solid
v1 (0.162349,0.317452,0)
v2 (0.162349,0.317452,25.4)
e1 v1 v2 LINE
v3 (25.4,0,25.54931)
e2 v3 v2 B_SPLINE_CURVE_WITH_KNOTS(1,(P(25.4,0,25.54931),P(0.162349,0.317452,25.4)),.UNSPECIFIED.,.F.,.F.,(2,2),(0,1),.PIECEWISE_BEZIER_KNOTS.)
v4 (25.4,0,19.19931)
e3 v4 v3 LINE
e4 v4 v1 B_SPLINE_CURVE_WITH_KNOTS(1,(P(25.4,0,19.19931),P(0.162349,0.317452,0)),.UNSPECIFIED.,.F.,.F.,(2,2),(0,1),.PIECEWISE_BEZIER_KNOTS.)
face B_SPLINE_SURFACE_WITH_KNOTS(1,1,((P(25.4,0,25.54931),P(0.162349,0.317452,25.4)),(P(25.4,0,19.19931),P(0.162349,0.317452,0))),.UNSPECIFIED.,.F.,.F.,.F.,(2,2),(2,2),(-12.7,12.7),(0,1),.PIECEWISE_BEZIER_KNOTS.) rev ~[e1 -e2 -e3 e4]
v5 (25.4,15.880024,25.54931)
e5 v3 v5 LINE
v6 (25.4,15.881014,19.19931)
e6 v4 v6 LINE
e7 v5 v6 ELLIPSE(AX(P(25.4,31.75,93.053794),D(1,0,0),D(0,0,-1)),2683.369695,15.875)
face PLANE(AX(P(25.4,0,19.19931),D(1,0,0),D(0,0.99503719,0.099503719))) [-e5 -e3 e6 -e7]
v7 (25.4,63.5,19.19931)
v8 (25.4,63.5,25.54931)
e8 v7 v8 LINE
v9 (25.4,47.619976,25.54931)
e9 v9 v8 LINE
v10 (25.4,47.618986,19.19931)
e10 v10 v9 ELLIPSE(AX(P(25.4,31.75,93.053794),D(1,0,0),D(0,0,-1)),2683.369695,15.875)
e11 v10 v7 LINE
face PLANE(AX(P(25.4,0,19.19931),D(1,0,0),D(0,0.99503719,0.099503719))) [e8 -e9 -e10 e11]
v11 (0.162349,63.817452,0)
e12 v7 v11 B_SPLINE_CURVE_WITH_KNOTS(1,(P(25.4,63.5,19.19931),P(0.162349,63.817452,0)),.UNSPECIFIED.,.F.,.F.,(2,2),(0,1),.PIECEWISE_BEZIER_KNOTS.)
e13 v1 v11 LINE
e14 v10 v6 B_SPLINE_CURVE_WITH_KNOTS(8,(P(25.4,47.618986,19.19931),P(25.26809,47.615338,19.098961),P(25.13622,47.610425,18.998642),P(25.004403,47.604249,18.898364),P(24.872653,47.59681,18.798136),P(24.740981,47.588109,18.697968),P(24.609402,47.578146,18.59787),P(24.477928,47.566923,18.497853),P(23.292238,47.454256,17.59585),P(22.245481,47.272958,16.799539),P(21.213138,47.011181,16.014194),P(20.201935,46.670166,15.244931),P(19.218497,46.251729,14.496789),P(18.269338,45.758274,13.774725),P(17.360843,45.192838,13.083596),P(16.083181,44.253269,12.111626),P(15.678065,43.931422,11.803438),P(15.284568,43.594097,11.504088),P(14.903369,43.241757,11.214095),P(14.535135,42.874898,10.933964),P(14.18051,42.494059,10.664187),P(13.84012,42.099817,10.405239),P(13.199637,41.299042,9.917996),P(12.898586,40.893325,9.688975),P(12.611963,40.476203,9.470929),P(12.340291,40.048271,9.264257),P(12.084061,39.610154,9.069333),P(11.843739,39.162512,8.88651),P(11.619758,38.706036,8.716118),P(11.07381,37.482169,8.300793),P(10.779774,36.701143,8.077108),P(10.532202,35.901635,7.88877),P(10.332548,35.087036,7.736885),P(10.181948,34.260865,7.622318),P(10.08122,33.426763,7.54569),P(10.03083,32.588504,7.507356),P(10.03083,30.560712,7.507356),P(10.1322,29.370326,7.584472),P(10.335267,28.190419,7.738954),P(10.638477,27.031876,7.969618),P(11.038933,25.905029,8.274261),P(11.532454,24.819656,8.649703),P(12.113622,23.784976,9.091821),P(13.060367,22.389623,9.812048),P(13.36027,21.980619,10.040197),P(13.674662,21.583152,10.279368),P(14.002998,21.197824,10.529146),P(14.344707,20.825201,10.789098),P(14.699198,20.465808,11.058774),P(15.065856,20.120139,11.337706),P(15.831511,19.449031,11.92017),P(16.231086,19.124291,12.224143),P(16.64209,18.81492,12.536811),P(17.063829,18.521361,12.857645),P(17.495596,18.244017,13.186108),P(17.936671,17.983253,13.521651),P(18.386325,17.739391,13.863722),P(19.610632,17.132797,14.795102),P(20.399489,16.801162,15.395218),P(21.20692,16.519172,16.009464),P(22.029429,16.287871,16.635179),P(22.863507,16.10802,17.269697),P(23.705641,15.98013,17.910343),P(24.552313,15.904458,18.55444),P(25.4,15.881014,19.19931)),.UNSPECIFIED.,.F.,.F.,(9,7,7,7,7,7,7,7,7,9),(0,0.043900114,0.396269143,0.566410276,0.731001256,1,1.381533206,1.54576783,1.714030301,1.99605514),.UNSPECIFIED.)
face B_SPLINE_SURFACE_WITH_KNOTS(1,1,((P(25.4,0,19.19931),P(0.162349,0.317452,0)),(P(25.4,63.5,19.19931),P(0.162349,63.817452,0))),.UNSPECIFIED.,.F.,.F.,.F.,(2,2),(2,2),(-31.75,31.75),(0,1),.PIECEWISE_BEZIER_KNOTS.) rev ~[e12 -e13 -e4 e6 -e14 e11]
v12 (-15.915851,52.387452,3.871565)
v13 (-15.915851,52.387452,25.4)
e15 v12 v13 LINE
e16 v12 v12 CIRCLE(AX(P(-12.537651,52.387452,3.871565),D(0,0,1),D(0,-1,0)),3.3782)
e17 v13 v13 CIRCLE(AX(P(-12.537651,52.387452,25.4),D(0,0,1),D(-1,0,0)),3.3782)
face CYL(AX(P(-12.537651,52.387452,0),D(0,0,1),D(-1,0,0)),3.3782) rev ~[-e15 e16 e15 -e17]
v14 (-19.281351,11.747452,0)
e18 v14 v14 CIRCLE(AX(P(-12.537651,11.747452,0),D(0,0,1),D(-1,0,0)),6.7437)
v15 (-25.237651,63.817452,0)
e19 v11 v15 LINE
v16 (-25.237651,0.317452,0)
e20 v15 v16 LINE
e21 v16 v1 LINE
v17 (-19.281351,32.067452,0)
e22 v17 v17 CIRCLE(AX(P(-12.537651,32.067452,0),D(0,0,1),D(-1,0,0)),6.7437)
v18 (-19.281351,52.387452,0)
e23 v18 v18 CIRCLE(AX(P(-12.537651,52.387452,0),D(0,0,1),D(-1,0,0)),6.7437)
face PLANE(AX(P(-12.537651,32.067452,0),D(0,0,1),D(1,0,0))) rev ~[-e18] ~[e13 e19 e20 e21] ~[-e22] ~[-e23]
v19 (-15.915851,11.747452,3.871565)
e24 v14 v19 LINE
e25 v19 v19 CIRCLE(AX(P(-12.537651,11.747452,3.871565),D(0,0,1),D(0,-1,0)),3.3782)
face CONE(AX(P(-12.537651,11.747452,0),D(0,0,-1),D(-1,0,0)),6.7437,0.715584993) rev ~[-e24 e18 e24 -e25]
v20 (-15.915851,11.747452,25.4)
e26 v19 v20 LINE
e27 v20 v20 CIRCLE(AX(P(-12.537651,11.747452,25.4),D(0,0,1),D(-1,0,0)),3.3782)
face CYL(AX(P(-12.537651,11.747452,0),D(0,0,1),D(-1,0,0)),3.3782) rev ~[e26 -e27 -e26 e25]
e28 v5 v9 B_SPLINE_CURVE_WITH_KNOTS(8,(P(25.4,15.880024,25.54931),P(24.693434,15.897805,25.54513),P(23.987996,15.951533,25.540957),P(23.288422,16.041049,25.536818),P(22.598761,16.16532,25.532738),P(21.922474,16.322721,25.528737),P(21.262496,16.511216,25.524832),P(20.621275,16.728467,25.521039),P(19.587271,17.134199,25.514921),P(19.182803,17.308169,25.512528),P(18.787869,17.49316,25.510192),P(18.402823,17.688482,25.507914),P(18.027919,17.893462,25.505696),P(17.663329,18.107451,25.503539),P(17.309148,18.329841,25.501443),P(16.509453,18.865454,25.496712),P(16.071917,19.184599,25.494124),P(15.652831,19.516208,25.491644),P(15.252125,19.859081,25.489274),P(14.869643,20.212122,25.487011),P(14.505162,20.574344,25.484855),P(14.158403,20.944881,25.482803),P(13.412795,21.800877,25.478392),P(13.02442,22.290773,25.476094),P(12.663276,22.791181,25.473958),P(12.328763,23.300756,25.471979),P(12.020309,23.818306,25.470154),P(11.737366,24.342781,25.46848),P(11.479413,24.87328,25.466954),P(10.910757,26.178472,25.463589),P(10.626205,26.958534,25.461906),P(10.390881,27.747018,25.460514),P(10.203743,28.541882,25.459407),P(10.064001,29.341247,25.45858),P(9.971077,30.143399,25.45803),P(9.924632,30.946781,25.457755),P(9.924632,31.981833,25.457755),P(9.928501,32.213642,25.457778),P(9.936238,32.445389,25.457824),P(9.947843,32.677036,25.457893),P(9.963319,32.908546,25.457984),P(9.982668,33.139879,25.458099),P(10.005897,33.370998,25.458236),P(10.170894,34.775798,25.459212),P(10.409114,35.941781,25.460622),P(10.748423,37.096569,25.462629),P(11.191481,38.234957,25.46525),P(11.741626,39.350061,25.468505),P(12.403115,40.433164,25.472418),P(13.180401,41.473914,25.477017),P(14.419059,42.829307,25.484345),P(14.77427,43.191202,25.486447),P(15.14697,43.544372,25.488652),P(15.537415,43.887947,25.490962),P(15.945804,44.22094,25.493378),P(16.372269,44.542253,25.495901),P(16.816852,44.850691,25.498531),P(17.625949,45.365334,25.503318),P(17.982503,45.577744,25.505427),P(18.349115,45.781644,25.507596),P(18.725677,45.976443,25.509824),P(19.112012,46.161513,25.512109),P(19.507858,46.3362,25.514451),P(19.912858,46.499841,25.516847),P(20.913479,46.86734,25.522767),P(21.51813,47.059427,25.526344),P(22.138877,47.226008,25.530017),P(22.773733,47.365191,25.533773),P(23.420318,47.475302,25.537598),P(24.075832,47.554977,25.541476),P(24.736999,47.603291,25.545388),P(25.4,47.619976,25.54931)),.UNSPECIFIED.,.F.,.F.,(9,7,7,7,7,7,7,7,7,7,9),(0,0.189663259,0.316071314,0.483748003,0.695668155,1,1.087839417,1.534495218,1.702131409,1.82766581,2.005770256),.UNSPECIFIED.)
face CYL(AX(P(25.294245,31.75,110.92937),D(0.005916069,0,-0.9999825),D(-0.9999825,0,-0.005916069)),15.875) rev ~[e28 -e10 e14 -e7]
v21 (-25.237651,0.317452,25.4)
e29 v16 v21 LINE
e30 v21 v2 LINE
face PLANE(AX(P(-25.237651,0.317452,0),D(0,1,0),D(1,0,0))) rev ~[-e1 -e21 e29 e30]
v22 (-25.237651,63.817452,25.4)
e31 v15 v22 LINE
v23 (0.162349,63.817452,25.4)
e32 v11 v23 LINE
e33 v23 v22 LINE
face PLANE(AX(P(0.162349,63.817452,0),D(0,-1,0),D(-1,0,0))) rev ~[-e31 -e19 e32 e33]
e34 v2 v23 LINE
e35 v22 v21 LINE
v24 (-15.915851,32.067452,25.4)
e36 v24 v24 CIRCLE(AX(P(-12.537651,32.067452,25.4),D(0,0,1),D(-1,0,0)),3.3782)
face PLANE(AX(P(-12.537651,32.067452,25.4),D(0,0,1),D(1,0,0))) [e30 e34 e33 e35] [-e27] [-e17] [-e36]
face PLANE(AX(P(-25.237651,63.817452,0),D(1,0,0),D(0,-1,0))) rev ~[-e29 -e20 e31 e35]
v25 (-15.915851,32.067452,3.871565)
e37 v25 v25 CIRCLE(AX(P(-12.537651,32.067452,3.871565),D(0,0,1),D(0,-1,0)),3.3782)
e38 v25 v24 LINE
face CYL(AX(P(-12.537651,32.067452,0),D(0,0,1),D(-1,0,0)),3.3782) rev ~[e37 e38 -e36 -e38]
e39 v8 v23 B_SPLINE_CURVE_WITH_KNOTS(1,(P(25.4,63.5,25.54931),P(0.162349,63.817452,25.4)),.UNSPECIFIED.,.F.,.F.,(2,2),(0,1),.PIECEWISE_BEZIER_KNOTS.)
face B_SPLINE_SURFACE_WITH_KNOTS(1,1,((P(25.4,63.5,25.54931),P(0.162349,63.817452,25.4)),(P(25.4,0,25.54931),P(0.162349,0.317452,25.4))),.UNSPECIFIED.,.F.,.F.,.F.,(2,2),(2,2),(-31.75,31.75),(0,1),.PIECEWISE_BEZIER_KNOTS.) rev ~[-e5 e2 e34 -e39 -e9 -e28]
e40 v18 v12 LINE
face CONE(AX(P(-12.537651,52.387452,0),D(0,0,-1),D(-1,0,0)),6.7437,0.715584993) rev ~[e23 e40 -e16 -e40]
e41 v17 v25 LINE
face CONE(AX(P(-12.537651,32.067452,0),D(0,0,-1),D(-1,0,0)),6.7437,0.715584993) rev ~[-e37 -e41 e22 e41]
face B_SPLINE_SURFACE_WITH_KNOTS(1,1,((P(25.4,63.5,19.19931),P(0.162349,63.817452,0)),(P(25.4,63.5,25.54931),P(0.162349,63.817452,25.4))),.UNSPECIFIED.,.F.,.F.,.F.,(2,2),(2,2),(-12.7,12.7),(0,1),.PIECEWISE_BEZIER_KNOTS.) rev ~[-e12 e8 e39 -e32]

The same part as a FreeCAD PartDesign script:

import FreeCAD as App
import Part
import Sketcher

V = App.Vector
Q = App.Units.Quantity

doc = App.newDocument("Part")
params = doc.addObject("Spreadsheet::Sheet", "Params")
for row, (alias, value) in enumerate([
    ("sketch1_width", "1 in"),
    ("sketch1_height", "2.5 in"),
    ("pad1_length", "1 in"),
    ("sketch2_diameter", "0.266 in"),
    ("hole_diameter", "0.266 in"),
    ("hole_csink_diameter", "0.531 in"),
    ("sketch3_width", "2.5 in"),
    ("sketch3_height", "0.25 in"),
    ("sketch4_height", "1 in"),
    ("sketch4_width", "2.5 in"),
    ("sketch5_diameter", "1.25 in"),
    ("hole2_diameter", "1.25 in"),
], start=1):
    params.set(f"A{row}", alias)
    params.set(f"B{row}", "=" + value)
    params.setAlias(f"B{row}", alias)

body = doc.addObject("PartDesign::Body", "Body")

# Sketch on XY plane
sketch1 = body.newObject("Sketcher::SketchObject", "Sketch")
sketch1.AttachmentSupport = (doc.getObject("XY_Plane"), [""])
sketch1.MapMode = "FlatFace"
sketch1.addGeometry(Part.LineSegment(V(0, 64, 0), V(-25, 64, 0)), False)
sketch1.addGeometry(Part.LineSegment(V(-25, 64, 0), V(-25, 0, 0)), False)
sketch1.addGeometry(Part.LineSegment(V(-25, 0, 0), V(0, 0, 0)), False)
sketch1.addGeometry(Part.LineSegment(V(0, 0, 0), V(0, 64, 0)), False)
sketch1.addConstraint(Sketcher.Constraint("Coincident", 0, 2, 1, 1))
sketch1.addConstraint(Sketcher.Constraint("Coincident", 1, 2, 2, 1))
sketch1.addConstraint(Sketcher.Constraint("Coincident", 2, 2, 3, 1))
sketch1.addConstraint(Sketcher.Constraint("Coincident", 3, 2, 0, 1))
sketch1.addConstraint(Sketcher.Constraint("Horizontal", 0))
sketch1.addConstraint(Sketcher.Constraint("Vertical", 1))
sketch1.addConstraint(Sketcher.Constraint("Horizontal", 2))
sketch1.addConstraint(Sketcher.Constraint("Vertical", 3))
sketch1.addConstraint(Sketcher.Constraint("DistanceX", 0, 2, 0, 1, Q("1 in")))
sketch1.addConstraint(Sketcher.Constraint("DistanceY", 1, 2, 1, 1, Q("2.5 in")))
sketch1.addConstraint(Sketcher.Constraint("DistanceX", 0, 2, -1, 1, Q("25.237651 mm")))
sketch1.addConstraint(Sketcher.Constraint("DistanceY", -1, 1, 0, 2, Q("63.817452 mm")))
sketch1.setExpression("Constraints[8]", "Params.sketch1_width")
sketch1.setExpression("Constraints[9]", "Params.sketch1_height")
pad1 = body.newObject("PartDesign::Pad", "Pad")
pad1.Profile = sketch1
pad1.setExpression("Length", "Params.pad1_length")

# Sketch on XY plane
sketch2 = body.newObject("Sketcher::SketchObject", "Sketch001")
sketch2.AttachmentSupport = (doc.getObject("XY_Plane"), [""])
sketch2.MapMode = "FlatFace"
sketch2.addGeometry(Part.Circle(V(-12.5, 11.7, 0), V(0, 0, 1), 3.4), False)
sketch2.addGeometry(Part.Circle(V(-12.5, 32.1, 0), V(0, 0, 1), 3.4), False)
sketch2.addGeometry(Part.Circle(V(-12.5, 52.4, 0), V(0, 0, 1), 3.4), False)
sketch2.addConstraint(Sketcher.Constraint("Equal", 0, 1))
sketch2.addConstraint(Sketcher.Constraint("Equal", 1, 2))
sketch2.addConstraint(Sketcher.Constraint("Vertical", 0, 3, 1, 3))
sketch2.addConstraint(Sketcher.Constraint("Vertical", 1, 3, 2, 3))
sketch2.addConstraint(Sketcher.Constraint("Diameter", 0, Q("0.266 in")))
sketch2.addConstraint(Sketcher.Constraint("DistanceY", 0, 3, 1, 3, Q("0.8 in")))
sketch2.addConstraint(Sketcher.Constraint("DistanceY", 1, 3, 2, 3, Q("0.8 in")))
sketch2.addConstraint(Sketcher.Constraint("DistanceX", 0, 3, -1, 1, Q("12.537651 mm")))
sketch2.addConstraint(Sketcher.Constraint("DistanceY", -1, 1, 0, 3, Q("11.747452 mm")))
sketch2.setExpression("Constraints[4]", "Params.sketch2_diameter")
doc.recompute()
hole = body.newObject("PartDesign::Hole", "Hole")
hole.Profile = sketch2
hole.ThreadType = "None"
hole.setExpression("Diameter", "Params.hole_diameter")
hole.DepthType = "ThroughAll"
hole.HoleCutType = "Countersink"
hole.setExpression("HoleCutDiameter", "Params.hole_csink_diameter")
hole.HoleCutCountersinkAngle = 82
hole.Reversed = True

# Sketch on YZ plane
sketch3 = body.newObject("Sketcher::SketchObject", "Sketch002")
sketch3.AttachmentSupport = (doc.getObject("YZ_Plane"), [""])
sketch3.MapMode = "FlatFace"
sketch3.AttachmentOffset = App.Placement(V(0, 0, 1 * 25.4), App.Rotation())
sketch3.addGeometry(Part.LineSegment(V(0, 26, 0), V(0, 19, 0)), False)
sketch3.addGeometry(Part.LineSegment(V(0, 19, 0), V(64, 19, 0)), False)
sketch3.addGeometry(Part.LineSegment(V(64, 19, 0), V(64, 26, 0)), False)
sketch3.addGeometry(Part.LineSegment(V(64, 26, 0), V(0, 26, 0)), False)
sketch3.addConstraint(Sketcher.Constraint("Coincident", 0, 2, 1, 1))
sketch3.addConstraint(Sketcher.Constraint("Coincident", 1, 2, 2, 1))
sketch3.addConstraint(Sketcher.Constraint("Coincident", 2, 2, 3, 1))
sketch3.addConstraint(Sketcher.Constraint("Coincident", 3, 2, 0, 1))
sketch3.addConstraint(Sketcher.Constraint("Vertical", 0))
sketch3.addConstraint(Sketcher.Constraint("Horizontal", 1))
sketch3.addConstraint(Sketcher.Constraint("Vertical", 2))
sketch3.addConstraint(Sketcher.Constraint("Horizontal", 3))
sketch3.addConstraint(Sketcher.Constraint("PointOnObject", 0, 2, -2))
sketch3.addConstraint(Sketcher.Constraint("DistanceX", 1, 1, 1, 2, Q("2.5 in")))
sketch3.addConstraint(Sketcher.Constraint("DistanceY", 0, 2, 0, 1, Q("0.25 in")))
sketch3.addConstraint(Sketcher.Constraint("DistanceY", -1, 1, 0, 2, Q("19.19931 mm")))
sketch3.setExpression("Constraints[9]", "Params.sketch3_width")
sketch3.setExpression("Constraints[10]", "Params.sketch3_height")

# Sketch on YZ plane
sketch4 = body.newObject("Sketcher::SketchObject", "Sketch003")
sketch4.AttachmentSupport = (doc.getObject("YZ_Plane"), [""])
sketch4.MapMode = "FlatFace"
sketch4.AttachmentOffset = App.Placement(V(0, 0, 0.162349), App.Rotation())
sketch4.addGeometry(Part.LineSegment(V(0, 25, 0), V(0, 0, 0)), False)
sketch4.addGeometry(Part.LineSegment(V(0, 0, 0), V(64, 0, 0)), False)
sketch4.addGeometry(Part.LineSegment(V(64, 0, 0), V(64, 25, 0)), False)
sketch4.addGeometry(Part.LineSegment(V(64, 25, 0), V(0, 25, 0)), False)
sketch4.addConstraint(Sketcher.Constraint("Coincident", 0, 2, 1, 1))
sketch4.addConstraint(Sketcher.Constraint("Coincident", 1, 2, 2, 1))
sketch4.addConstraint(Sketcher.Constraint("Coincident", 2, 2, 3, 1))
sketch4.addConstraint(Sketcher.Constraint("Coincident", 3, 2, 0, 1))
sketch4.addConstraint(Sketcher.Constraint("Vertical", 0))
sketch4.addConstraint(Sketcher.Constraint("Horizontal", 1))
sketch4.addConstraint(Sketcher.Constraint("Vertical", 2))
sketch4.addConstraint(Sketcher.Constraint("Horizontal", 3))
sketch4.addConstraint(Sketcher.Constraint("PointOnObject", 0, 2, -1))
sketch4.addConstraint(Sketcher.Constraint("DistanceY", 0, 2, 0, 1, Q("1 in")))
sketch4.addConstraint(Sketcher.Constraint("DistanceX", 1, 1, 1, 2, Q("2.5 in")))
sketch4.addConstraint(Sketcher.Constraint("DistanceX", -1, 1, 0, 2, Q("0.317452 mm")))
sketch4.setExpression("Constraints[9]", "Params.sketch4_height")
sketch4.setExpression("Constraints[10]", "Params.sketch4_width")

additiveloft = body.newObject("PartDesign::AdditiveLoft", "AdditiveLoft")
additiveloft.Profile = sketch3
additiveloft.Sections = [sketch4]

# Sketch on an angled plane
sketch5 = body.newObject("Sketcher::SketchObject", "Sketch004")
sketch5.Placement = App.Placement(V(-0.15026, 0, 25.398151), App.Rotation(V(0.9999825, 0, 0.005916069), V(0, 1, 0), V(-0.005916069, 0, 0.9999825), "ZXY"))
sketch5.addGeometry(Part.Circle(V(26, 32, 0), V(0, 0, 1), 16), False)
sketch5.addConstraint(Sketcher.Constraint("Diameter", 0, Q("1.25 in")))
sketch5.addConstraint(Sketcher.Constraint("DistanceY", -1, 1, 0, 3, Q("1.25 in")))
sketch5.addConstraint(Sketcher.Constraint("DistanceX", -1, 1, 0, 3, Q("25.950068 mm")))
sketch5.setExpression("Constraints[0]", "Params.sketch5_diameter")
doc.recompute()
hole2 = body.newObject("PartDesign::Hole", "Hole001")
hole2.Profile = sketch5
hole2.ThreadType = "None"
hole2.setExpression("Diameter", "Params.hole2_diameter")
hole2.DepthType = "ThroughAll"

doc.recompute()
